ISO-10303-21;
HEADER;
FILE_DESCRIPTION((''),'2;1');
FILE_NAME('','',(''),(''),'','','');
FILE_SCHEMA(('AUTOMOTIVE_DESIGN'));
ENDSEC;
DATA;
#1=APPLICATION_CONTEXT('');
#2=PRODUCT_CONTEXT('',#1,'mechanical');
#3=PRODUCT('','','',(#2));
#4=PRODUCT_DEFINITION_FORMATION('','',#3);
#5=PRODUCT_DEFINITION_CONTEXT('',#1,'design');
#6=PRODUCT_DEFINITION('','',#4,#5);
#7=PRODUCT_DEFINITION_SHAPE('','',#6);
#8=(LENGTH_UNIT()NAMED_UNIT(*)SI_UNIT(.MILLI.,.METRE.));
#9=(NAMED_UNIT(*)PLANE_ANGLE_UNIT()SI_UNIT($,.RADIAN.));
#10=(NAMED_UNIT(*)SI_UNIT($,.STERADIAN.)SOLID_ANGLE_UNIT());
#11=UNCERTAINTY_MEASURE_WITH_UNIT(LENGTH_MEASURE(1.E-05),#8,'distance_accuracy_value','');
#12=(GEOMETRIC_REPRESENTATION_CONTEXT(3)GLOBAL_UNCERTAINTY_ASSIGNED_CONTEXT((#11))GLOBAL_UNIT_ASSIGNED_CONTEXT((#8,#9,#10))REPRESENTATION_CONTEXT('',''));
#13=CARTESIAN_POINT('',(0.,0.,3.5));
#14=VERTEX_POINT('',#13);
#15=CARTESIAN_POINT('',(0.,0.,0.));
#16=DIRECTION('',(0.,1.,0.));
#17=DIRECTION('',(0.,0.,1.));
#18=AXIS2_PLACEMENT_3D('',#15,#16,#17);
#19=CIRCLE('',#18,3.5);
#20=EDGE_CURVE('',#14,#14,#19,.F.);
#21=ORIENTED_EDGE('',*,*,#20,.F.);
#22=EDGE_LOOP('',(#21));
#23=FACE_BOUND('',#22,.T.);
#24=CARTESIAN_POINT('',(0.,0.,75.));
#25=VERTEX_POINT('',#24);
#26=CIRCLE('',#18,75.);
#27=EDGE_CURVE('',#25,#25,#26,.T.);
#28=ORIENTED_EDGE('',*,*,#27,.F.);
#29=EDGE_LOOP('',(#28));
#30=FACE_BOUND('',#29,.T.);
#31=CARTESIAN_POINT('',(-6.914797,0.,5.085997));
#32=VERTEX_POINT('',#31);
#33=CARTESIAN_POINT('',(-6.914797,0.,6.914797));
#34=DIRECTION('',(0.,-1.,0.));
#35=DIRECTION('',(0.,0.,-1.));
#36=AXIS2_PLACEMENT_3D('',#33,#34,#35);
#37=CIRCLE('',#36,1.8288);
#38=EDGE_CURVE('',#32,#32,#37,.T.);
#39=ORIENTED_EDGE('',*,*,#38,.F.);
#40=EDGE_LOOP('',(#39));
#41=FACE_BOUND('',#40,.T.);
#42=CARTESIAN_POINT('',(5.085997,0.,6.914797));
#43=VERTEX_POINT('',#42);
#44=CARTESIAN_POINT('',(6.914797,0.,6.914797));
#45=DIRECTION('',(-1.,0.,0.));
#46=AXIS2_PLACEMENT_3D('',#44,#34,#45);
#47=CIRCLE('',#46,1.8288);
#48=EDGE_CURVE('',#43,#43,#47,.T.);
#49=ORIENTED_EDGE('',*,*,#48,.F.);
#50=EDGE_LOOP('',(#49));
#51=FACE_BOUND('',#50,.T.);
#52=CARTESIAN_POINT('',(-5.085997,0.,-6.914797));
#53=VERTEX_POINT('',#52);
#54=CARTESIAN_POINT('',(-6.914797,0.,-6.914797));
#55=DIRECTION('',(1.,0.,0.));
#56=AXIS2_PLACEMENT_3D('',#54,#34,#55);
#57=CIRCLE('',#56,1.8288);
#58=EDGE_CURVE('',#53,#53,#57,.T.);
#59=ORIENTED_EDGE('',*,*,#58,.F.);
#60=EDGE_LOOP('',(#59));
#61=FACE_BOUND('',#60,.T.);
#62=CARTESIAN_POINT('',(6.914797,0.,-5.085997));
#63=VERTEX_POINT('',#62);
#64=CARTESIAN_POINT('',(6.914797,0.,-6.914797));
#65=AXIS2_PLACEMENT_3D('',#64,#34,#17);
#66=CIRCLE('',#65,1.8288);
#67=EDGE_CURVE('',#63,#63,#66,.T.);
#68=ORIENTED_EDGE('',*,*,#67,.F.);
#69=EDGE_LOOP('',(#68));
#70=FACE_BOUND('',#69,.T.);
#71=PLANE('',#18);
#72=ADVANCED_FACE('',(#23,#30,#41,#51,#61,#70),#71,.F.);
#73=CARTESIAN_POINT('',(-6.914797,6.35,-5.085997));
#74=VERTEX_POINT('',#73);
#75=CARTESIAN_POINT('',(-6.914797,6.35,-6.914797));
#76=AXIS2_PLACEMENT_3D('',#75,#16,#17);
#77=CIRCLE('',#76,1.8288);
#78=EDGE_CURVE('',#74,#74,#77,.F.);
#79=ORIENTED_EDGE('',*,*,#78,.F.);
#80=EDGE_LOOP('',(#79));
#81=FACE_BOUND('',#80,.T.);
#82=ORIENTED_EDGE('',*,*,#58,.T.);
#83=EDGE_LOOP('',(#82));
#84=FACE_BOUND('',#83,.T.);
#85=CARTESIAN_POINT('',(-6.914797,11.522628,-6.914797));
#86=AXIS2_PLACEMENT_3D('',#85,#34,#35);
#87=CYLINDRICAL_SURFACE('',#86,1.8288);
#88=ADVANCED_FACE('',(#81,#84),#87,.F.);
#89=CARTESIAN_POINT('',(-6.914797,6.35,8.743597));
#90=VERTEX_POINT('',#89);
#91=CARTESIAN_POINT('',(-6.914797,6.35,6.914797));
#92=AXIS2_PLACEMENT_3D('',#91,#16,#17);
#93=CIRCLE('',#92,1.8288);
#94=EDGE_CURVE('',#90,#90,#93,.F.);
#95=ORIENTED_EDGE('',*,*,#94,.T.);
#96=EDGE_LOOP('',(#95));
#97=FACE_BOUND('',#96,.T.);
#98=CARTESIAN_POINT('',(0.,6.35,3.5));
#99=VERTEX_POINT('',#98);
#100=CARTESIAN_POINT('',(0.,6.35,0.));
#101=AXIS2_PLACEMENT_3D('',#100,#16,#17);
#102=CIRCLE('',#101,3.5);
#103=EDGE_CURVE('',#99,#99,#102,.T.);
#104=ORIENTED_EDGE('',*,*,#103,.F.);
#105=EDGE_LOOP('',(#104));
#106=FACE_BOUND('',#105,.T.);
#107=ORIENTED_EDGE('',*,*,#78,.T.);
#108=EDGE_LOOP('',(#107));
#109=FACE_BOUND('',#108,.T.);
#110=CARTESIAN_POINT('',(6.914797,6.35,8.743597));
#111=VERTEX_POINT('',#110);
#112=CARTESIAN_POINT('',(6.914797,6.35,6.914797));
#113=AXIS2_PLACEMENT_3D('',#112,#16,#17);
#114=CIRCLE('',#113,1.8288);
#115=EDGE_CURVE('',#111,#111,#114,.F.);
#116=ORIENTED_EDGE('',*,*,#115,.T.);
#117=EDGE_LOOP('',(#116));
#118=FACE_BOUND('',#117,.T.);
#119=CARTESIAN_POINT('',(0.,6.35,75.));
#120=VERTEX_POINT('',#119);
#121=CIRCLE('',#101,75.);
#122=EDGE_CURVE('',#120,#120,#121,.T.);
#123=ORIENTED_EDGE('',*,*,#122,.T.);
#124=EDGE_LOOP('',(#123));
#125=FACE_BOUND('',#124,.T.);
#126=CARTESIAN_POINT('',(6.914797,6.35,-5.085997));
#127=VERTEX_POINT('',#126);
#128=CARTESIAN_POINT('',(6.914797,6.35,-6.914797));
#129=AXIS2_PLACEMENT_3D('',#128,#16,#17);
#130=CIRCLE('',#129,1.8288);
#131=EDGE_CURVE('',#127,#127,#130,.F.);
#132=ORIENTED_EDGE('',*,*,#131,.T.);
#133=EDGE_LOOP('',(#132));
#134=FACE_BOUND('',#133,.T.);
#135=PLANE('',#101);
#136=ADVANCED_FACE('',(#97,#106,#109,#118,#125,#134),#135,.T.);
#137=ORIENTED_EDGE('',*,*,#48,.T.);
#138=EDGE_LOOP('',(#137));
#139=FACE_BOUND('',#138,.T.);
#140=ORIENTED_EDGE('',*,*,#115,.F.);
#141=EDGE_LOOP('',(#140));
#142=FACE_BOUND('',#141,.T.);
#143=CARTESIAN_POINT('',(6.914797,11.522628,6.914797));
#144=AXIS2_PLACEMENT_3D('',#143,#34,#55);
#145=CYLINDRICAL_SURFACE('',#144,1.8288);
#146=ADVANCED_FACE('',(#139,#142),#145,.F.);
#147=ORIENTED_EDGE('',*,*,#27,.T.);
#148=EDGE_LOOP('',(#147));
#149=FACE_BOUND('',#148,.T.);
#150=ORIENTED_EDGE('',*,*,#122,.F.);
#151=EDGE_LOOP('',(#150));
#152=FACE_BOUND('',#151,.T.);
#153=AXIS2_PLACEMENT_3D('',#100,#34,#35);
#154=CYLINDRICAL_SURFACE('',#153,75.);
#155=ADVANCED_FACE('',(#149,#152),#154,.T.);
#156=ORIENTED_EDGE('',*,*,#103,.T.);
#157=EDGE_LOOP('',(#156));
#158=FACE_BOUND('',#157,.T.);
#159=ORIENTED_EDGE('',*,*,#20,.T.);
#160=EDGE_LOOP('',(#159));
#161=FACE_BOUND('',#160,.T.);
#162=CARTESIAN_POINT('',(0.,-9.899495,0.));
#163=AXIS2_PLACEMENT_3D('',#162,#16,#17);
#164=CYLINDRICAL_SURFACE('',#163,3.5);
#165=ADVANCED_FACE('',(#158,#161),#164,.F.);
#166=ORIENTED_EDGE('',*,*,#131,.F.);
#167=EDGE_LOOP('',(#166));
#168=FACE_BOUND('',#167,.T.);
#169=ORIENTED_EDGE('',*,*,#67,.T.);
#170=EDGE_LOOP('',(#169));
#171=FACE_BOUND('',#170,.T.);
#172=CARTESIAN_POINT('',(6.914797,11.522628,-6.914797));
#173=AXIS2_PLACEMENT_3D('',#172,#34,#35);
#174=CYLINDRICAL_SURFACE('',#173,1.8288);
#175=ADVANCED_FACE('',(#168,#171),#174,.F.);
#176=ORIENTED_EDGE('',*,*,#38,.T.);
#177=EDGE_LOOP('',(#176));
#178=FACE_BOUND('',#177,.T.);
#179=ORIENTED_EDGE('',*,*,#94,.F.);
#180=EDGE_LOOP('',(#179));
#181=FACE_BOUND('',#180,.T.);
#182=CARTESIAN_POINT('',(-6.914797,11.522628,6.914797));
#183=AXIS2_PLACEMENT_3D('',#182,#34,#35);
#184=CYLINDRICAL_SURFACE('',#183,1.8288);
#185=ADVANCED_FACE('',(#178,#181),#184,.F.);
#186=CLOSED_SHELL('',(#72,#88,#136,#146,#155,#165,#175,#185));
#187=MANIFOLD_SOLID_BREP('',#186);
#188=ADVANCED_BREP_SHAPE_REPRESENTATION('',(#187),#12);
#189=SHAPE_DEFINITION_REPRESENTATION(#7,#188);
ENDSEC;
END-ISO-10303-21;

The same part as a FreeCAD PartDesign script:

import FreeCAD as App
import Part
import Sketcher

V = App.Vector
Q = App.Units.Quantity

doc = App.newDocument("Part")
body = doc.addObject("PartDesign::Body", "Body")

sketch1 = body.newObject("Sketcher::SketchObject", "Sketch")
sketch1.AttachmentSupport = (doc.getObject("XZ_Plane"), [""])
sketch1.MapMode = "FlatFace"
sketch1.addGeometry(Part.Circle(V(0, 0, 0), V(0, 0, 1), 75), False)
sketch1.addConstraint([
    Sketcher.Constraint("Coincident", 0, 3, -1, 1),
    Sketcher.Constraint("Diameter", 0, Q("150 mm")),
])
pad1 = body.newObject("PartDesign::Pad", "Pad")
pad1.Profile = sketch1
pad1.Length = 6.35
pad1.Reversed = True

sketch2 = body.newObject("Sketcher::SketchObject", "Sketch001")
sketch2.AttachmentSupport = (doc.getObject("XZ_Plane"), [""])
sketch2.MapMode = "FlatFace"
sketch2.AttachmentOffset = App.Placement(V(0, 0, -6.35), App.Rotation())
sketch2.addGeometry(Part.Circle(V(0, 0, 0), V(0, 0, 1), 3.5), False)
sketch2.addConstraint([
    Sketcher.Constraint("Coincident", 0, 3, -1, 1),
    Sketcher.Constraint("Diameter", 0, Q("7 mm")),
])
pocket1 = body.newObject("PartDesign::Pocket", "Pocket")
pocket1.Profile = sketch2
pocket1.Length = 6.35
pocket1.Reversed = True

sketch3 = body.newObject("Sketcher::SketchObject", "Sketch002")
sketch3.AttachmentSupport = (doc.getObject("XZ_Plane"), [""])
sketch3.MapMode = "FlatFace"
sketch3.addGeometry(Part.Circle(V(-6.9, 6.9, 0), V(0, 0, 1), 1.8), False)
sketch3.addConstraint([
    Sketcher.Constraint("Diameter", 0, Q("3.6576 mm")),
    Sketcher.Constraint("DistanceX", 0, 3, -1, 1, Q("6.914797 mm")),
    Sketcher.Constraint("DistanceY", -1, 1, 0, 3, Q("6.914797 mm")),
])
pocket2 = body.newObject("PartDesign::Pocket", "Pocket001")
pocket2.Profile = sketch3
pocket2.Length = 6.35
doc.recompute()

polarpattern = body.newObject("PartDesign::PolarPattern", "PolarPattern")
polarpattern.Originals = [pocket2]
polarpattern.Axis = (doc.getObject("Y_Axis"), [""])
polarpattern.Angle = 360
polarpattern.Occurrences = 4
body.Tip = polarpattern

doc.recompute()
